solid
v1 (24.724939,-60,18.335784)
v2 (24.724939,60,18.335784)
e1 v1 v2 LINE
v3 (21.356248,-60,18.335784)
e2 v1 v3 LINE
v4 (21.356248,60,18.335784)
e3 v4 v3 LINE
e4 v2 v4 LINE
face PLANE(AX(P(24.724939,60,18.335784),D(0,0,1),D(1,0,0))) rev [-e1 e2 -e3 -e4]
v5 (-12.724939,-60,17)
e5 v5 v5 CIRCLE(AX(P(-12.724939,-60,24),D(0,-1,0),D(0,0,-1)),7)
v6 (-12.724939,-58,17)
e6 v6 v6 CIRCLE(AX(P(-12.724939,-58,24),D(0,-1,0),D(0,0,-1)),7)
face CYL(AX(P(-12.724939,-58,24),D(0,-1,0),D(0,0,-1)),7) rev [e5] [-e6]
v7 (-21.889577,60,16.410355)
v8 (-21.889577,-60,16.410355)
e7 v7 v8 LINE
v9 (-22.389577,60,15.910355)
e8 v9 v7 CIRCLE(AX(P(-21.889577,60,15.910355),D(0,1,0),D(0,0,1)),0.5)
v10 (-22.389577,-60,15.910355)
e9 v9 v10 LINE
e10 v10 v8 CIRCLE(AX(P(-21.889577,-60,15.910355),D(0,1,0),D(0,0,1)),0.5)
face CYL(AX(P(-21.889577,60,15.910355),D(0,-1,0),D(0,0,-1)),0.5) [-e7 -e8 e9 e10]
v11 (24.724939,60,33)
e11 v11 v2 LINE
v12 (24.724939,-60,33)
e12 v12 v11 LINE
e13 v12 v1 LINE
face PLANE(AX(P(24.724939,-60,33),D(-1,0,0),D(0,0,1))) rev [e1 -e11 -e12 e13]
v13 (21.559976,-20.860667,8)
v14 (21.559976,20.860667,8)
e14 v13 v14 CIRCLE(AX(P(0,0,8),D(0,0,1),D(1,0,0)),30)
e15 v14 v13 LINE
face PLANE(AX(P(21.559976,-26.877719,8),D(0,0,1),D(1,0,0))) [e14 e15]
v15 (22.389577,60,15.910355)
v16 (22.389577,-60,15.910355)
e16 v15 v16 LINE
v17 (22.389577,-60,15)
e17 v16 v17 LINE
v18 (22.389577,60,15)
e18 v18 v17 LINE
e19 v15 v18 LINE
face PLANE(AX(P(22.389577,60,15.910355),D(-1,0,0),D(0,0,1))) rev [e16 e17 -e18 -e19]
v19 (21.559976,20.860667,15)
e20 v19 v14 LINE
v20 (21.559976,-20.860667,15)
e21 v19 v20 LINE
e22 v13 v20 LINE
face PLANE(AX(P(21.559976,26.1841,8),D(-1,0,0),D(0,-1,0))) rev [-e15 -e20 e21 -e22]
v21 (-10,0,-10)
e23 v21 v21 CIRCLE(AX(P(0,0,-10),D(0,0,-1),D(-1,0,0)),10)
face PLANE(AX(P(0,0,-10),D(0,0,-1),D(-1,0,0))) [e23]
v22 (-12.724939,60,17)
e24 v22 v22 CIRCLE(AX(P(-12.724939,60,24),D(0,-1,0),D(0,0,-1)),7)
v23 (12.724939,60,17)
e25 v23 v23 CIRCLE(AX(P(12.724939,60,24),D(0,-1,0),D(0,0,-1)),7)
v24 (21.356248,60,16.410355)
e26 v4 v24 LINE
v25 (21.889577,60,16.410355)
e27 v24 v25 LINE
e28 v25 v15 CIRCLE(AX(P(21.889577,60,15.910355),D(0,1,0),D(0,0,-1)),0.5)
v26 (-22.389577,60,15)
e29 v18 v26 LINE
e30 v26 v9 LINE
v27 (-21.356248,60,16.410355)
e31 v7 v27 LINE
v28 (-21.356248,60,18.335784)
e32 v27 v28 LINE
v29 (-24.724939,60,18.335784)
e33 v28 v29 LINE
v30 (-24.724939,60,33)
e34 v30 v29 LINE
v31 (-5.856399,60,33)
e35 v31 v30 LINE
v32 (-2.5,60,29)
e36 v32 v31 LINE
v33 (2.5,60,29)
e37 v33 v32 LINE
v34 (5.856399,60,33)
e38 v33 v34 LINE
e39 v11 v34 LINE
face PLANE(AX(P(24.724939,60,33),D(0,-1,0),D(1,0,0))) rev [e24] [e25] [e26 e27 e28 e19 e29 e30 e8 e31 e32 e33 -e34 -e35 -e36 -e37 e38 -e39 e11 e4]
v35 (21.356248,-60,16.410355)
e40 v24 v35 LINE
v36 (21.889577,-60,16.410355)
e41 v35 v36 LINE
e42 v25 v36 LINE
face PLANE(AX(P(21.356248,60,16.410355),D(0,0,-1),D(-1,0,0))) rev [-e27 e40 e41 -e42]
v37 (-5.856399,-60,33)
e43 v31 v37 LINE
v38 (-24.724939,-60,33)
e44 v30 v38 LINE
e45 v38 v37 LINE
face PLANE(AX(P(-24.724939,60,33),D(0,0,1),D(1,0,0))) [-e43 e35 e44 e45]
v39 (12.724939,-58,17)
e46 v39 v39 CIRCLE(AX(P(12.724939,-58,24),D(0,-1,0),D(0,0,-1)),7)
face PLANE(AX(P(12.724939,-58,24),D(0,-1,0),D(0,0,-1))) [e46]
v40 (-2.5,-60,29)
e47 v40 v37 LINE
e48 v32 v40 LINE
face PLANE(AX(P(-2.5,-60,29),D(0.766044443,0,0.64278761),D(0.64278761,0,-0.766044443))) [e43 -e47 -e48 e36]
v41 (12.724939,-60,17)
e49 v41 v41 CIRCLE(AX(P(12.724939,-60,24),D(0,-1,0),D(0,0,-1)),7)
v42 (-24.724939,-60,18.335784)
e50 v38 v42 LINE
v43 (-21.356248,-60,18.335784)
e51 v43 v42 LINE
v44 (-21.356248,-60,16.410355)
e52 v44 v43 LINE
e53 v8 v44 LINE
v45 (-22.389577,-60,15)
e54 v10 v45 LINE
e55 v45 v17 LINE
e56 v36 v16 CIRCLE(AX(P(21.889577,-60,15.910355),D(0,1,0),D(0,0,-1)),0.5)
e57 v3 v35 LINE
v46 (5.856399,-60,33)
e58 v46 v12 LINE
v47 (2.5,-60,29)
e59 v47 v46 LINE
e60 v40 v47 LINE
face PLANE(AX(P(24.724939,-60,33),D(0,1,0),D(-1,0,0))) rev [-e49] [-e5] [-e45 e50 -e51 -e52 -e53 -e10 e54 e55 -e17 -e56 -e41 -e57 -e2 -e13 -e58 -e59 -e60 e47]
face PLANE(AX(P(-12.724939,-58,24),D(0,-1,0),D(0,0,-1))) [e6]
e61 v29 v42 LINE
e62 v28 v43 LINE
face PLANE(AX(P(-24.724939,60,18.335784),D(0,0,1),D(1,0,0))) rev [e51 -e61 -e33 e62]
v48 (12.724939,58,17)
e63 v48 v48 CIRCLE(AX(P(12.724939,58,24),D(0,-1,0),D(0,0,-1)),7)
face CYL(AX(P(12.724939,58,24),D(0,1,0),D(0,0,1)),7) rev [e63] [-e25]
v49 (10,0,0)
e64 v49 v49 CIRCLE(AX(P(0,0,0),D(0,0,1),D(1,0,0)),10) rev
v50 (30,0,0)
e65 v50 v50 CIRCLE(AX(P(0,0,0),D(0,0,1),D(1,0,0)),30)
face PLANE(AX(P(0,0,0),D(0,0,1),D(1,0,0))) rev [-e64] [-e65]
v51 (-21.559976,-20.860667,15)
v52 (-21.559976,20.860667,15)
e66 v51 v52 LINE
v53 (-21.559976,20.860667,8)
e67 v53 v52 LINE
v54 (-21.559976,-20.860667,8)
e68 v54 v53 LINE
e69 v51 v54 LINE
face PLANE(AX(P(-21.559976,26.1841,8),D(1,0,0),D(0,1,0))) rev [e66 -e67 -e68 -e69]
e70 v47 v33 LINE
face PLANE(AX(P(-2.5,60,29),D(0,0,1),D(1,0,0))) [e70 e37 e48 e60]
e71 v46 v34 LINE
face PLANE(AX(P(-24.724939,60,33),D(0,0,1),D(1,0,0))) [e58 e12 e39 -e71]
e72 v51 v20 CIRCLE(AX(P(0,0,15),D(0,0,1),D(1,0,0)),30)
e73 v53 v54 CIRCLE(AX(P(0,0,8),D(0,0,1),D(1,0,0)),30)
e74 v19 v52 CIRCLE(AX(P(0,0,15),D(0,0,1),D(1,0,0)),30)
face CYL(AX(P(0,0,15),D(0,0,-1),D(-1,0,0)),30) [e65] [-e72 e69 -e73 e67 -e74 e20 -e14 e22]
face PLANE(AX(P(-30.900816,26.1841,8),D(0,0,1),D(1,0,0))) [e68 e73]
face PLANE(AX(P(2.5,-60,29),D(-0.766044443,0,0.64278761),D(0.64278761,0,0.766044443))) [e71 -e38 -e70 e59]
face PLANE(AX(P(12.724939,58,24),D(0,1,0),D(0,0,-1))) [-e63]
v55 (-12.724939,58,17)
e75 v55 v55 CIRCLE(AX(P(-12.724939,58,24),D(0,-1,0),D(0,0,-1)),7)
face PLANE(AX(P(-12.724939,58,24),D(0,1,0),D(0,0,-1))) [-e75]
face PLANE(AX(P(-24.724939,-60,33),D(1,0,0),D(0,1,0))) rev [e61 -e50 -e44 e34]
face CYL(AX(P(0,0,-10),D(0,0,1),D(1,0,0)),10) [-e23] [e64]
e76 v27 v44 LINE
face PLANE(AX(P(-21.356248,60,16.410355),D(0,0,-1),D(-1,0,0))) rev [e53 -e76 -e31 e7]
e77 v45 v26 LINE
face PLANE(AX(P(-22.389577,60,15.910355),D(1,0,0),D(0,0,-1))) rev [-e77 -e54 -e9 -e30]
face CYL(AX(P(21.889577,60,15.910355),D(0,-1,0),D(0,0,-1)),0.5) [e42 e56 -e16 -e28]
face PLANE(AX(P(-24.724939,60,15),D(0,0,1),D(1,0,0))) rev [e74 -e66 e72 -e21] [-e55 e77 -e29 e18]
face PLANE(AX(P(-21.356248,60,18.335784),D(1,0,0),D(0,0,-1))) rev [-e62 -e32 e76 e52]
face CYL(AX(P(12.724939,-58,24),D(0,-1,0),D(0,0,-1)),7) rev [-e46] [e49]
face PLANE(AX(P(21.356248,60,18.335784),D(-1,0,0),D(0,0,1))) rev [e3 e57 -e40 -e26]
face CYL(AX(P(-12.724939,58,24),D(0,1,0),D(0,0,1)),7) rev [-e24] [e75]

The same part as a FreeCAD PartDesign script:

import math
import FreeCAD as App
import Part
import Sketcher

V = App.Vector
Q = App.Units.Quantity


def faces_at(feature, points):
    """Names of the faces that lie closest to the given points."""
    faces = feature.Shape.Faces
    near = lambda p: min(range(len(faces)), key=lambda i: faces[i].distToShape(Part.Vertex(*p))[0])
    return sorted({f"Face{near(p) + 1}" for p in points})

doc = App.newDocument("Part")
body = doc.addObject("PartDesign::Body", "Body")

# Sketch on XY plane
sketch1 = body.newObject("Sketcher::SketchObject", "Sketch")
sketch1.AttachmentSupport = (doc.getObject("XY_Plane"), [""])
sketch1.MapMode = "FlatFace"
sketch1.addGeometry(Part.Circle(V(0, 0, 0), V(0, 0, 1), 30), False)
sketch1.addConstraint([
    Sketcher.Constraint("Coincident", 0, 3, -1, 1),
    Sketcher.Constraint("Diameter", 0, Q("60 mm")),
])
pad1 = body.newObject("PartDesign::Pad", "Pad")
pad1.Profile = sketch1
pad1.Length = 15

# Sketch on XY plane
sketch2 = body.newObject("Sketcher::SketchObject", "Sketch001")
sketch2.AttachmentSupport = (doc.getObject("XY_Plane"), [""])
sketch2.MapMode = "FlatFace"
sketch2.AttachmentOffset = App.Placement(V(0, 0, 15), App.Rotation())
sketch2.addGeometry([
    Part.LineSegment(V(22, 26, 0), V(22, -27, 0)),  # 0
    Part.LineSegment(V(22, -27, 0), V(31, -27, 0)),  # 1
    Part.LineSegment(V(31, -27, 0), V(31, 26, 0)),  # 2
    Part.LineSegment(V(31, 26, 0), V(22, 26, 0)),  # 3
    Part.LineSegment(V(-31, 26, 0), V(-31, -27, 0)),  # 4
    Part.LineSegment(V(-31, -27, 0), V(-22, -27, 0)),  # 5
    Part.LineSegment(V(-22, -27, 0), V(-22, 26, 0)),  # 6
    Part.LineSegment(V(-22, 26, 0), V(-31, 26, 0)),  # 7
], False)
sketch2.addConstraint([
    Sketcher.Constraint("Coincident", 0, 2, 1, 1),
    Sketcher.Constraint("Coincident", 1, 2, 2, 1),
    Sketcher.Constraint("Coincident", 2, 2, 3, 1),
    Sketcher.Constraint("Coincident", 3, 2, 0, 1),
    Sketcher.Constraint("Coincident", 4, 2, 5, 1),
    Sketcher.Constraint("Coincident", 5, 2, 6, 1),
    Sketcher.Constraint("Coincident", 6, 2, 7, 1),
    Sketcher.Constraint("Coincident", 7, 2, 4, 1),
    Sketcher.Constraint("Vertical", 0),
    Sketcher.Constraint("Horizontal", 1),
    Sketcher.Constraint("Vertical", 2),
    Sketcher.Constraint("Horizontal", 3),
    Sketcher.Constraint("Vertical", 4),
    Sketcher.Constraint("Horizontal", 5),
    Sketcher.Constraint("Vertical", 6),
    Sketcher.Constraint("Horizontal", 7),
    Sketcher.Constraint("Symmetric", 1, 2, 4, 2, -2),
    Sketcher.Constraint("Symmetric", 3, 2, 6, 2, -2),
    Sketcher.Constraint("DistanceX", 1, 1, 1, 2, Q("9.34084 mm")),
    Sketcher.Constraint("DistanceY", 0, 2, 0, 1, Q("53.061819 mm")),
    Sketcher.Constraint("DistanceY", -1, 1, 2, 2, Q("26.1841 mm")),
    Sketcher.Constraint("DistanceX", -1, 1, 0, 2, Q("21.559976 mm")),
])
pocket1 = body.newObject("PartDesign::Pocket", "Pocket")
pocket1.Profile = sketch2
pocket1.Length = 7

# Sketch on XY plane
sketch3 = body.newObject("Sketcher::SketchObject", "Sketch002")
sketch3.AttachmentSupport = (doc.getObject("XY_Plane"), [""])
sketch3.MapMode = "FlatFace"
sketch3.AttachmentOffset = App.Placement(V(0, 0, 15), App.Rotation())
sketch3.addGeometry([
    Part.LineSegment(V(-25, 60, 0), V(-25, -60, 0)),
    Part.LineSegment(V(-25, -60, 0), V(25, -60, 0)),
    Part.LineSegment(V(25, -60, 0), V(25, 60, 0)),
    Part.LineSegment(V(25, 60, 0), V(-25, 60, 0)),
], False)
sketch3.addConstraint([
    Sketcher.Constraint("Coincident", 0, 2, 1, 1),
    Sketcher.Constraint("Coincident", 1, 2, 2, 1),
    Sketcher.Constraint("Coincident", 2, 2, 3, 1),
    Sketcher.Constraint("Coincident", 3, 2, 0, 1),
    Sketcher.Constraint("Vertical", 0),
    Sketcher.Constraint("Horizontal", 1),
    Sketcher.Constraint("Vertical", 2),
    Sketcher.Constraint("Horizontal", 3),
    Sketcher.Constraint("Symmetric", 0, 2, 2, 2, -1, 1),
    Sketcher.Constraint("DistanceY", 0, 2, 0, 1, Q("120 mm")),
    Sketcher.Constraint("DistanceX", 1, 1, 1, 2, Q("49.449879 mm")),
])
pad2 = body.newObject("PartDesign::Pad", "Pad001")
pad2.Profile = sketch3
pad2.Length = 18

# Sketch on XZ plane
sketch4 = body.newObject("Sketcher::SketchObject", "Sketch003")
sketch4.AttachmentSupport = (doc.getObject("XZ_Plane"), [""])
sketch4.MapMode = "FlatFace"
sketch4.AttachmentOffset = App.Placement(V(0, 0, 60), App.Rotation())
sketch4.addGeometry([
    Part.Circle(V(13, 24, 0), V(0, 0, 1), 7),
    Part.Circle(V(-13, 24, 0), V(0, 0, 1), 7),
], False)
sketch4.addConstraint([
    Sketcher.Constraint("Equal", 0, 1),
    Sketcher.Constraint("Symmetric", 0, 3, 1, 3, -2),
    Sketcher.Constraint("Diameter", 0, Q("14 mm")),
    Sketcher.Constraint("DistanceY", -1, 1, 0, 3, Q("24 mm")),
    Sketcher.Constraint("DistanceX", -1, 1, 0, 3, Q("12.724939 mm")),
])
pocket2 = body.newObject("PartDesign::Pocket", "Pocket001")
pocket2.Profile = sketch4
pocket2.Length = 2
doc.recompute()

mirrored = body.newObject("PartDesign::Mirrored", "Mirrored")
mirrored.Originals = [pocket2]
mirrored.MirrorPlane = (doc.getObject("XZ_Plane"), [""])
body.Tip = mirrored

# Sketch on XZ plane
sketch5 = body.newObject("Sketcher::SketchObject", "Sketch004")
sketch5.AttachmentSupport = (doc.getObject("XZ_Plane"), [""])
sketch5.MapMode = "FlatFace"
sketch5.AttachmentOffset = App.Placement(V(0, 0, 60), App.Rotation())
sketch5.addGeometry([
    Part.LineSegment(V(21.4, 18.3, 0), V(21.4, 16.4, 0)),  # 0
    Part.LineSegment(V(21.4, 16.4, 0), V(21.9, 16.4, 0)),  # 1
    Part.ArcOfCircle(Part.Circle(V(21.9, 15.9, 0), V(0, 0, 1), 0.5), math.radians(0), math.radians(90)),  # 2
    Part.LineSegment(V(22.4, 15.9, 0), V(22.4, 15, 0)),  # 3
    Part.LineSegment(V(22.4, 15, 0), V(22.7, 13.1, 0)),  # 4
    Part.LineSegment(V(22.7, 13.1, 0), V(26, 13.1, 0)),  # 5
    Part.LineSegment(V(26, 13.1, 0), V(26, 18.3, 0)),  # 6
    Part.LineSegment(V(26, 18.3, 0), V(21.4, 18.3, 0)),  # 7
    Part.LineSegment(V(-22.4, 13.8, 0), V(-22.4, 15.9, 0)),  # 8
    Part.ArcOfCircle(Part.Circle(V(-21.9, 15.9, 0), V(0, 0, 1), 0.5), math.radians(90), math.radians(180)),  # 9
    Part.LineSegment(V(-21.9, 16.4, 0), V(-21.4, 16.4, 0)),  # 10
    Part.LineSegment(V(-21.4, 16.4, 0), V(-21.4, 18.3, 0)),  # 11
    Part.LineSegment(V(-21.4, 18.3, 0), V(-25.8, 18.3, 0)),  # 12
    Part.LineSegment(V(-25.8, 18.3, 0), V(-25.5, 13.8, 0)),  # 13
    Part.LineSegment(V(-25.5, 13.8, 0), V(-22.4, 13.8, 0)),  # 14
], False)
sketch5.addConstraint([
    Sketcher.Constraint("Coincident", 0, 2, 1, 1),
    Sketcher.Constraint("Tangent", 1, 2, 2, 2),
    Sketcher.Constraint("Tangent", 2, 1, 3, 1),
    Sketcher.Constraint("Coincident", 3, 2, 4, 1),
    Sketcher.Constraint("Coincident", 4, 2, 5, 1),
    Sketcher.Constraint("Coincident", 5, 2, 6, 1),
    Sketcher.Constraint("Coincident", 6, 2, 7, 1),
    Sketcher.Constraint("Coincident", 7, 2, 0, 1),
    Sketcher.Constraint("Tangent", 8, 2, 9, 2),
    Sketcher.Constraint("Tangent", 9, 1, 10, 1),
    Sketcher.Constraint("Coincident", 10, 2, 11, 1),
    Sketcher.Constraint("Coincident", 11, 2, 12, 1),
    Sketcher.Constraint("Coincident", 12, 2, 13, 1),
    Sketcher.Constraint("Coincident", 13, 2, 14, 1),
    Sketcher.Constraint("Coincident", 14, 2, 8, 1),
    Sketcher.Constraint("Vertical", 0),
    Sketcher.Constraint("Horizontal", 1),
    Sketcher.Constraint("Vertical", 3),
    Sketcher.Constraint("Horizontal", 5),
    Sketcher.Constraint("Vertical", 6),
    Sketcher.Constraint("Horizontal", 7),
    Sketcher.Constraint("Vertical", 8),
    Sketcher.Constraint("Horizontal", 10),
    Sketcher.Constraint("Vertical", 11),
    Sketcher.Constraint("Horizontal", 12),
    Sketcher.Constraint("Horizontal", 14),
    Sketcher.Constraint("Equal", 2, 9),
    Sketcher.Constraint("Symmetric", 2, 3, 9, 3, -2),
    Sketcher.Constraint("Symmetric", 7, 2, 11, 2, -2),
    Sketcher.Constraint("Radius", 2, Q("0.5 mm")),
    Sketcher.Constraint("DistanceY", -1, 1, 3, 2, Q("15 mm")),
    Sketcher.Constraint("DistanceX", 7, 2, 7, 1, Q("4.6709 mm")),
    Sketcher.Constraint("DistanceX", 1, 1, 1, 2, Q("0.533329 mm")),
    Sketcher.Constraint("DistanceX", 5, 1, 5, 2, Q("3.32648 mm")),
    Sketcher.Constraint("DistanceX", 12, 2, 12, 1, Q("4.48664 mm")),
    Sketcher.Constraint("DistanceY", 0, 2, 0, 1, Q("1.925429 mm")),
    Sketcher.Constraint("DistanceY", 8, 1, 8, 2, Q("2.152862 mm")),
    Sketcher.Constraint("Distance", 13, Q("4.58792 mm")),
    Sketcher.Constraint("DistanceY", 3, 2, 3, 1, Q("0.910355 mm")),
    Sketcher.Constraint("DistanceY", 6, 1, 6, 2, Q("5.196057 mm")),
    Sketcher.Constraint("DistanceX", -1, 1, 0, 2, Q("21.356248 mm")),
])
pocket3 = body.newObject("PartDesign::Pocket", "Pocket002")
pocket3.Profile = sketch5
pocket3.Type = "ThroughAll"

# Sketch on XY plane
sketch6 = body.newObject("Sketcher::SketchObject", "Sketch005")
sketch6.AttachmentSupport = (doc.getObject("XY_Plane"), [""])
sketch6.MapMode = "FlatFace"
sketch6.addGeometry(Part.Circle(V(0, 0, 0), V(0, 0, 1), 10), False)
sketch6.addConstraint([
    Sketcher.Constraint("Coincident", 0, 3, -1, 1),
    Sketcher.Constraint("Diameter", 0, Q("20 mm")),
])
pad3 = body.newObject("PartDesign::Pad", "Pad002")
pad3.Profile = sketch6
pad3.Length = 10
pad3.Reversed = True

# Sketch on XY plane
sketch7 = body.newObject("Sketcher::SketchObject", "Sketch006")
sketch7.AttachmentSupport = (doc.getObject("XY_Plane"), [""])
sketch7.MapMode = "FlatFace"
sketch7.AttachmentOffset = App.Placement(V(0, 0, 33), App.Rotation())
sketch7.addGeometry([
    Part.LineSegment(V(-2, 60, 0), V(-2, -60, 0)),
    Part.LineSegment(V(-2, -60, 0), V(2, -60, 0)),
    Part.LineSegment(V(2, -60, 0), V(2, 60, 0)),
    Part.LineSegment(V(2, 60, 0), V(-2, 60, 0)),
], False)
sketch7.addConstraint([
    Sketcher.Constraint("Coincident", 0, 2, 1, 1),
    Sketcher.Constraint("Coincident", 1, 2, 2, 1),
    Sketcher.Constraint("Coincident", 2, 2, 3, 1),
    Sketcher.Constraint("Coincident", 3, 2, 0, 1),
    Sketcher.Constraint("Vertical", 0),
    Sketcher.Constraint("Horizontal", 1),
    Sketcher.Constraint("Vertical", 2),
    Sketcher.Constraint("Horizontal", 3),
    Sketcher.Constraint("Symmetric", 0, 2, 2, 2, -1, 1),
    Sketcher.Constraint("DistanceX", 1, 1, 1, 2, Q("5 mm")),
    Sketcher.Constraint("DistanceY", 0, 2, 0, 1, Q("120 mm")),
])
pocket4 = body.newObject("PartDesign::Pocket", "Pocket003")
pocket4.Profile = sketch7
pocket4.Length = 4
doc.recompute()

datumplane = body.newObject("PartDesign::Plane", "DatumPlane")
datumplane.AttachmentSupport = (doc.getObject("XY_Plane"), [""])
datumplane.MapMode = "FlatFace"
datumplane.AttachmentOffset = App.Placement(V(0, 0, 29), App.Rotation())
draft = body.newObject("PartDesign::Draft", "Draft")
draft.Base = (pocket4, faces_at(pocket4, [(-2.5, 0, 31), (2.5, 0, 31)]))
draft.NeutralPlane = (datumplane, [""])
draft.Angle = 40
draft.Reversed = False

doc.recompute()
